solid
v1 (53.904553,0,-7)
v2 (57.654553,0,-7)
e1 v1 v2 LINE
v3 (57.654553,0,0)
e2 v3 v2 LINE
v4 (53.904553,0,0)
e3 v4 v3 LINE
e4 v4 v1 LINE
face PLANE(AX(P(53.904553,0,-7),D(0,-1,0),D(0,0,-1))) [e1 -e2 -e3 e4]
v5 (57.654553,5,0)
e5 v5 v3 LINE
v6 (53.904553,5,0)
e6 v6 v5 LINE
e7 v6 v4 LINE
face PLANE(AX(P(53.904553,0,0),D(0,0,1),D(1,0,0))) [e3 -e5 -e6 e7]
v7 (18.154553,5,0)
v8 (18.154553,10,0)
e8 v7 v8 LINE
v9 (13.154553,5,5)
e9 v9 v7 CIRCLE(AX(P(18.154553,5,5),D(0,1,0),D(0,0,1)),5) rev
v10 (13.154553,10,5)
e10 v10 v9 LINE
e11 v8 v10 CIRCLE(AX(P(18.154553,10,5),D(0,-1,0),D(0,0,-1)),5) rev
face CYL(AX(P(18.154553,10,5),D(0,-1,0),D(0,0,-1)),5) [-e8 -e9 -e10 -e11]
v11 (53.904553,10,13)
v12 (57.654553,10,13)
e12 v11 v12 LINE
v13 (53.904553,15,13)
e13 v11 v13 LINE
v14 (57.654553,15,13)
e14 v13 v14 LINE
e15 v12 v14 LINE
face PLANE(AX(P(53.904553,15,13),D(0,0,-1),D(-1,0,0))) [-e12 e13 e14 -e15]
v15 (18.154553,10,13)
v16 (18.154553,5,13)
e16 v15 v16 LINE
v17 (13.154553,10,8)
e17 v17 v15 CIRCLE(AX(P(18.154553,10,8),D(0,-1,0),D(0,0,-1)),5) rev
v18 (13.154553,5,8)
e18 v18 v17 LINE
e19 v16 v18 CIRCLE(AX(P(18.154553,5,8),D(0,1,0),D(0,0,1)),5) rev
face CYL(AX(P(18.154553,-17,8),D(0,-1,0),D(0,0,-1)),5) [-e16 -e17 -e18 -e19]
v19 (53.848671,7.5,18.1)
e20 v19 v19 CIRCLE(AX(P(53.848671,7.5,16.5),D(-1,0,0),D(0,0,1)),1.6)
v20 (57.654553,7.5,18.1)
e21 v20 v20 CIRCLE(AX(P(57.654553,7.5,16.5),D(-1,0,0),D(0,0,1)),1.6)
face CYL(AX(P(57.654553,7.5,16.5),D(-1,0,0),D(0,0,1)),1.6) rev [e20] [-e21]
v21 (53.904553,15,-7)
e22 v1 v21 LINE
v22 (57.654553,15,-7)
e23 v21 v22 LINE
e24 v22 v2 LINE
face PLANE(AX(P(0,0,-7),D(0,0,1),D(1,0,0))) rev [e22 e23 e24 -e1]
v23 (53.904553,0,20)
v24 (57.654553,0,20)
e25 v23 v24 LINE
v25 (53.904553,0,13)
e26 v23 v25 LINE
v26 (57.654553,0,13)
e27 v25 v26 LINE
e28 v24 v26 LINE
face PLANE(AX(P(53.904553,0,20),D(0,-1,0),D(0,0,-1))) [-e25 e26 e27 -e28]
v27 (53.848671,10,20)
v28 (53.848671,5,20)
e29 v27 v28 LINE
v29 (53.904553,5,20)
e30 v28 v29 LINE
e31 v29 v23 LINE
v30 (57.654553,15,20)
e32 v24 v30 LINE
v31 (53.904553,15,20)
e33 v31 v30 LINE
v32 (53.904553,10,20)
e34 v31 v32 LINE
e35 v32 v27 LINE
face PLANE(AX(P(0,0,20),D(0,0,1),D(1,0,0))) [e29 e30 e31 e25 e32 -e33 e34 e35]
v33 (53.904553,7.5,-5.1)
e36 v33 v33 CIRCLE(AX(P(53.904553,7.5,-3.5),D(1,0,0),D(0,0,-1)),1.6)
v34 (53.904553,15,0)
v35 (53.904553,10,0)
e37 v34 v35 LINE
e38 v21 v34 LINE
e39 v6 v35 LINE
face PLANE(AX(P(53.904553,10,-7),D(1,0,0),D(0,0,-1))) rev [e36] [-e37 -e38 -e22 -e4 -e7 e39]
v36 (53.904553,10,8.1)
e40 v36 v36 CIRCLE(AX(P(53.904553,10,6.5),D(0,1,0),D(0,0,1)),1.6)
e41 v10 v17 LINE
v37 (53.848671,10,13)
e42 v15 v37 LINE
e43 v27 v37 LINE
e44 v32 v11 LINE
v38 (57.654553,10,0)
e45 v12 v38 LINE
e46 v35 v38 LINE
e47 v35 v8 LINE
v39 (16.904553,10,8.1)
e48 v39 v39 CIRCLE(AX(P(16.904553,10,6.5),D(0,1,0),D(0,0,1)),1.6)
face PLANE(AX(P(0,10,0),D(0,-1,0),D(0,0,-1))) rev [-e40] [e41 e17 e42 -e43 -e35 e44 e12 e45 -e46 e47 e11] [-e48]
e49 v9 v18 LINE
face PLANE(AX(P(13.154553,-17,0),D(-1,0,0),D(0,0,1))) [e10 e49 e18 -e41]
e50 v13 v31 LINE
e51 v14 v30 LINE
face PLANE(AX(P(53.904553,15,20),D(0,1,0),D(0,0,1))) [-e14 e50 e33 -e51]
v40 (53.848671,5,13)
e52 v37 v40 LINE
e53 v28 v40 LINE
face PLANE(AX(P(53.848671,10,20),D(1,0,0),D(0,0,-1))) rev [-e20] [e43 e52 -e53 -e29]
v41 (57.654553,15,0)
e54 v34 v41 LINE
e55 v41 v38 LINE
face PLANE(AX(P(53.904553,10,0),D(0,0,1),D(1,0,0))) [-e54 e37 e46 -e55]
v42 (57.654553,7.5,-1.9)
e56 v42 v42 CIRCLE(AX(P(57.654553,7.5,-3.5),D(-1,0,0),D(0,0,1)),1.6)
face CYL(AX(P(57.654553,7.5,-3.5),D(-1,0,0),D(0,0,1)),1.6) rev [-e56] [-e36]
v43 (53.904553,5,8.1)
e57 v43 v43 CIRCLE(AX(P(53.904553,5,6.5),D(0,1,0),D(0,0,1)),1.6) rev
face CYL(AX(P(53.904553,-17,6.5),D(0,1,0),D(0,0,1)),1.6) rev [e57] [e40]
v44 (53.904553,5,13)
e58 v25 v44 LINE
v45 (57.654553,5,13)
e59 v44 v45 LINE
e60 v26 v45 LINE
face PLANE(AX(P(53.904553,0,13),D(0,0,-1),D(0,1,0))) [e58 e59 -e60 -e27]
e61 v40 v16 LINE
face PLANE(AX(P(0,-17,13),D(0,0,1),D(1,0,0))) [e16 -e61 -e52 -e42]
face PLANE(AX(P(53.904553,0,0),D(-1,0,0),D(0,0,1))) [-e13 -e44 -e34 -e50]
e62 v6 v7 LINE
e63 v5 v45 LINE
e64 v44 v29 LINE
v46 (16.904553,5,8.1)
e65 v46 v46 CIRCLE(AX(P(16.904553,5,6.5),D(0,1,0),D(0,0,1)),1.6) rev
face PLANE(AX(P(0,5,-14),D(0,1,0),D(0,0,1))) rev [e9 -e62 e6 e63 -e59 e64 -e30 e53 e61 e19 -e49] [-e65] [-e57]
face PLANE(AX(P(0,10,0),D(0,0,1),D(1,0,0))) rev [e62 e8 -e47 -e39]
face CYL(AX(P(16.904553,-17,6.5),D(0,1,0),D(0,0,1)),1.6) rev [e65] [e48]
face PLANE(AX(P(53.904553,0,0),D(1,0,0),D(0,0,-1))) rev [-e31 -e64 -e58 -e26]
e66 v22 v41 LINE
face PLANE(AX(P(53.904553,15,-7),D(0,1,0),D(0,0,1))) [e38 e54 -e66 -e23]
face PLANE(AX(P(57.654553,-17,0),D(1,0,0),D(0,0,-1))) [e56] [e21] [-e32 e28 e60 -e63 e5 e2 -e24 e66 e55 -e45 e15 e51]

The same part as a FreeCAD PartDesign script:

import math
import FreeCAD as App
import Part
import Sketcher

V = App.Vector


def edges_at(feature, points):
    """Names of the edges that pass closest to the given points."""
    edges = feature.Shape.Edges
    near = lambda p: min(range(len(edges)), key=lambda i: edges[i].distToShape(Part.Vertex(*p))[0])
    return sorted({f"Edge{near(p) + 1}" for p in points})


def add_polygon(sketch, points):
    """Adds a closed chain of lines whose ends are joined by coincident constraints."""
    first, n = sketch.GeometryCount, len(points)
    for a, b in zip(points, points[1:] + points[:1]):
        sketch.addGeometry(Part.LineSegment(App.Vector(*a, 0), App.Vector(*b, 0)), False)
    for i in range(n):
        sketch.addConstraint(Sketcher.Constraint("Coincident", first + i, 2, first + (i + 1) % n, 1))

doc = App.newDocument("Part")
body = doc.addObject("PartDesign::Body", "Body")

sketch1 = doc.addObject("Sketcher::SketchObject", "Sketch")
body.addObject(sketch1)
sketch1.AttachmentSupport = (doc.XZ_Plane, [""])
sketch1.MapMode = "FlatFace"
add_polygon(sketch1, [(0, 0), (0, 100), (100, 100), (100, 0)])
sketch1.addConstraint(Sketcher.Constraint("Vertical", 0))
sketch1.addConstraint(Sketcher.Constraint("Horizontal", 1))
sketch1.addConstraint(Sketcher.Constraint("Vertical", 2))
sketch1.addConstraint(Sketcher.Constraint("Horizontal", 3))
sketch1.addConstraint(Sketcher.Constraint("Coincident", 3, 2, -1, 1))
sketch1.addConstraint(Sketcher.Constraint("Equal", 3, 0))
sketch1.addConstraint(Sketcher.Constraint("DistanceX", 1, 1, 1, 2, 100.0))
pad1 = doc.addObject("PartDesign::Pad", "Pad")
body.addObject(pad1)
pad1.Profile = sketch1
pad1.Length = 10
pad1.Reversed = True

sketch2 = doc.addObject("Sketcher::SketchObject", "Sketch001")
body.addObject(sketch2)
sketch2.AttachmentSupport = (doc.XZ_Plane, [""])
sketch2.MapMode = "FlatFace"
sketch2.AttachmentOffset = App.Placement(V(0, 0, -10), App.Rotation())
add_polygon(sketch2, [(0, 13), (0, 100), (100, 100), (100, 13)])
sketch2.addConstraint(Sketcher.Constraint("Vertical", 0))
sketch2.addConstraint(Sketcher.Constraint("Horizontal", 1))
sketch2.addConstraint(Sketcher.Constraint("Vertical", 2))
sketch2.addConstraint(Sketcher.Constraint("Horizontal", 3))
sketch2.addConstraint(Sketcher.Constraint("PointOnObject", 0, 2, -2))
sketch2.addConstraint(Sketcher.Constraint("DistanceX", 1, 1, 1, 2, 100.0))
sketch2.addConstraint(Sketcher.Constraint("DistanceY", 0, 1, 0, 2, 87.0))
sketch2.addConstraint(Sketcher.Constraint("DistanceY", -1, 1, 0, 2, 100.0))
pocket1 = doc.addObject("PartDesign::Pocket", "Pocket")
body.addObject(pocket1)
pocket1.Profile = sketch2
pocket1.Length = 27
pocket1.Reversed = True

sketch3 = doc.addObject("Sketcher::SketchObject", "Sketch002")
body.addObject(sketch3)
sketch3.AttachmentSupport = (doc.XZ_Plane, [""])
sketch3.MapMode = "FlatFace"
sketch3.AttachmentOffset = App.Placement(V(0, 0, -10), App.Rotation())
add_polygon(sketch3, [(13, 13), (13, 0), (0, 0), (0, 13)])
add_polygon(sketch3, [(100, 0), (58, 0), (58, 13), (100, 13)])
sketch3.addConstraint(Sketcher.Constraint("Vertical", 0))
sketch3.addConstraint(Sketcher.Constraint("Horizontal", 1))
sketch3.addConstraint(Sketcher.Constraint("Vertical", 2))
sketch3.addConstraint(Sketcher.Constraint("Horizontal", 3))
sketch3.addConstraint(Sketcher.Constraint("Horizontal", 4))
sketch3.addConstraint(Sketcher.Constraint("Vertical", 5))
sketch3.addConstraint(Sketcher.Constraint("Horizontal", 6))
sketch3.addConstraint(Sketcher.Constraint("Vertical", 7))
sketch3.addConstraint(Sketcher.Constraint("Coincident", 1, 2, -1, 1))
sketch3.addConstraint(Sketcher.Constraint("PointOnObject", 4, 2, -1))
sketch3.addConstraint(Sketcher.Constraint("Horizontal", 3, 2, 5, 2))
sketch3.addConstraint(Sketcher.Constraint("DistanceY", 0, 2, 0, 1, 13.0))
sketch3.addConstraint(Sketcher.Constraint("DistanceX", -1, 1, 6, 2, 100.0))
sketch3.addConstraint(Sketcher.Constraint("DistanceX", 0, 2, 4, 2, 44.5))
sketch3.addConstraint(Sketcher.Constraint("DistanceX", 1, 2, 1, 1, 13.154553))
pocket2 = doc.addObject("PartDesign::Pocket", "Pocket001")
body.addObject(pocket2)
pocket2.Profile = sketch3
pocket2.Length = 27
pocket2.Reversed = True

sketch4 = doc.addObject("Sketcher::SketchObject", "Sketch003")
body.addObject(sketch4)
sketch4.AttachmentSupport = (doc.XZ_Plane, [""])
sketch4.MapMode = "FlatFace"
sketch4.AttachmentOffset = App.Placement(V(0, 0, -10), App.Rotation())
sketch4.addGeometry(Part.Circle(V(16.9, 6.5, 0), V(0, 0, 1), 1.6), False)
sketch4.addGeometry(Part.Circle(V(53.9, 6.5, 0), V(0, 0, 1), 1.6), False)
sketch4.addConstraint(Sketcher.Constraint("Equal", 0, 1))
sketch4.addConstraint(Sketcher.Constraint("Horizontal", 0, 3, 1, 3))
sketch4.addConstraint(Sketcher.Constraint("Diameter", 0, 3.2))
sketch4.addConstraint(Sketcher.Constraint("DistanceX", 0, 3, 1, 3, 37.0))
sketch4.addConstraint(Sketcher.Constraint("DistanceY", -1, 1, 0, 3, 6.5))
sketch4.addConstraint(Sketcher.Constraint("DistanceX", -1, 1, 0, 3, 16.904553))
pocket3 = doc.addObject("PartDesign::Pocket", "Pocket002")
body.addObject(pocket3)
pocket3.Profile = sketch4
pocket3.Length = 27
pocket3.Reversed = True

sketch5 = doc.addObject("Sketcher::SketchObject", "Sketch004")
body.addObject(sketch5)
sketch5.AttachmentSupport = (doc.XY_Plane, [""])
sketch5.MapMode = "FlatFace"
sketch5.AttachmentOffset = App.Placement(V(0, 0, 13), App.Rotation())
add_polygon(sketch5, [(13, 5), (13, 0), (58, 0), (58, 5)])
sketch5.addConstraint(Sketcher.Constraint("Vertical", 0))
sketch5.addConstraint(Sketcher.Constraint("Horizontal", 1))
sketch5.addConstraint(Sketcher.Constraint("Vertical", 2))
sketch5.addConstraint(Sketcher.Constraint("Horizontal", 3))
sketch5.addConstraint(Sketcher.Constraint("PointOnObject", 0, 2, -1))
sketch5.addConstraint(Sketcher.Constraint("DistanceY", 0, 2, 0, 1, 5.0))
sketch5.addConstraint(Sketcher.Constraint("DistanceX", 1, 1, 1, 2, 44.5))
sketch5.addConstraint(Sketcher.Constraint("DistanceX", -1, 1, 0, 2, 13.154553))
pocket4 = doc.addObject("PartDesign::Pocket", "Pocket003")
body.addObject(pocket4)
pocket4.Profile = sketch5
pocket4.Length = 27

sketch6 = doc.addObject("Sketcher::SketchObject", "Sketch005")
body.addObject(sketch6)
sketch6.AttachmentSupport = (doc.XY_Plane, [""])
sketch6.MapMode = "FlatFace"
sketch6.AttachmentOffset = App.Placement(V(0, 0, 13), App.Rotation())
add_polygon(sketch6, [(53.8, 10), (53.8, 5), (57.7, 5), (57.7, 10)])
sketch6.addConstraint(Sketcher.Constraint("Vertical", 0))
sketch6.addConstraint(Sketcher.Constraint("Horizontal", 1))
sketch6.addConstraint(Sketcher.Constraint("Vertical", 2))
sketch6.addConstraint(Sketcher.Constraint("Horizontal", 3))
sketch6.addConstraint(Sketcher.Constraint("DistanceY", 0, 2, 0, 1, 5.0))
sketch6.addConstraint(Sketcher.Constraint("DistanceY", -1, 1, 0, 2, 5.0))
sketch6.addConstraint(Sketcher.Constraint("DistanceX", 1, 1, 1, 2, 3.805882))
sketch6.addConstraint(Sketcher.Constraint("DistanceX", -1, 1, 0, 2, 53.848671))
pad2 = doc.addObject("PartDesign::Pad", "Pad001")
body.addObject(pad2)
pad2.Profile = sketch6
pad2.Length = 7

sketch7 = doc.addObject("Sketcher::SketchObject", "Sketch006")
body.addObject(sketch7)
sketch7.AttachmentSupport = (doc.XY_Plane, [""])
sketch7.MapMode = "FlatFace"
add_polygon(sketch7, [(57.7, 10), (57.7, 5), (53.9, 5), (53.9, 10)])
sketch7.addConstraint(Sketcher.Constraint("Vertical", 0))
sketch7.addConstraint(Sketcher.Constraint("Horizontal", 1))
sketch7.addConstraint(Sketcher.Constraint("Vertical", 2))
sketch7.addConstraint(Sketcher.Constraint("Horizontal", 3))
sketch7.addConstraint(Sketcher.Constraint("DistanceY", 0, 2, 0, 1, 5.0))
sketch7.addConstraint(Sketcher.Constraint("DistanceY", -1, 1, 0, 2, 5.0))
sketch7.addConstraint(Sketcher.Constraint("DistanceX", 1, 2, 1, 1, 3.75))
sketch7.addConstraint(Sketcher.Constraint("DistanceX", -1, 1, 0, 2, 57.654553))
pad3 = doc.addObject("PartDesign::Pad", "Pad002")
body.addObject(pad3)
pad3.Profile = sketch7
pad3.Length = 7
pad3.Reversed = True
doc.recompute()

fillet = doc.addObject("PartDesign::Fillet", "Fillet")
body.addObject(fillet)
fillet.Base = (pad3, edges_at(pad3, [(13.155, 7.5, 0)]))
fillet.Radius = 5
doc.recompute()

fillet2 = doc.addObject("PartDesign::Fillet", "Fillet001")
body.addObject(fillet2)
fillet2.Base = (fillet, edges_at(fillet, [(13.155, 7.5, 13)]))
fillet2.Radius = 5

sketch8 = doc.addObject("Sketcher::SketchObject", "Sketch007")
body.addObject(sketch8)
sketch8.AttachmentSupport = (doc.YZ_Plane, [""])
sketch8.MapMode = "FlatFace"
sketch8.AttachmentOffset = App.Placement(V(0, 0, 57.654553), App.Rotation())
add_polygon(sketch8, [(15, 20), (10, 20), (10, 13), (15, 13)])
add_polygon(sketch8, [(5, 20), (0, 20), (0, 13), (5, 13)])
add_polygon(sketch8, [(15, 0), (10, 0), (10, -7), (15, -7)])
add_polygon(sketch8, [(5, 0), (0, 0), (0, -7), (5, -7)])
sketch8.addConstraint(Sketcher.Constraint("Horizontal", 0))
sketch8.addConstraint(Sketcher.Constraint("Vertical", 1))
sketch8.addConstraint(Sketcher.Constraint("Horizontal", 2))
sketch8.addConstraint(Sketcher.Constraint("Vertical", 3))
sketch8.addConstraint(Sketcher.Constraint("Horizontal", 4))
sketch8.addConstraint(Sketcher.Constraint("Vertical", 5))
sketch8.addConstraint(Sketcher.Constraint("Horizontal", 6))
sketch8.addConstraint(Sketcher.Constraint("Vertical", 7))
sketch8.addConstraint(Sketcher.Constraint("Horizontal", 8))
sketch8.addConstraint(Sketcher.Constraint("Vertical", 9))
sketch8.addConstraint(Sketcher.Constraint("Horizontal", 10))
sketch8.addConstraint(Sketcher.Constraint("Vertical", 11))
sketch8.addConstraint(Sketcher.Constraint("Horizontal", 12))
sketch8.addConstraint(Sketcher.Constraint("Vertical", 13))
sketch8.addConstraint(Sketcher.Constraint("Horizontal", 14))
sketch8.addConstraint(Sketcher.Constraint("Vertical", 15))
sketch8.addConstraint(Sketcher.Constraint("Coincident", 12, 2, -1, 1))
sketch8.addConstraint(Sketcher.Constraint("PointOnObject", 4, 2, -2))
sketch8.addConstraint(Sketcher.Constraint("PointOnObject", 8, 2, -1))
sketch8.addConstraint(Sketcher.Constraint("Horizontal", 3, 2, 4, 2))
sketch8.addConstraint(Sketcher.Constraint("Horizontal", 2, 2, 5, 2))
sketch8.addConstraint(Sketcher.Constraint("Horizontal", 10, 2, 13, 2))
sketch8.addConstraint(Sketcher.Constraint("Vertical", 1, 2, 8, 2))
sketch8.addConstraint(Sketcher.Constraint("Vertical", 3, 2, 10, 2))
sketch8.addConstraint(Sketcher.Constraint("Vertical", 7, 2, 14, 2))
sketch8.addConstraint(Sketcher.Constraint("Equal", 2, 4))
sketch8.addConstraint(Sketcher.Constraint("Equal", 7, 9))
sketch8.addConstraint(Sketcher.Constraint("DistanceX", 0, 2, 0, 1, 5.0))
sketch8.addConstraint(Sketcher.Constraint("DistanceY", 1, 2, 1, 1, 7.0))
sketch8.addConstraint(Sketcher.Constraint("DistanceX", -1, 1, 0, 2, 10.0))
sketch8.addConstraint(Sketcher.Constraint("DistanceY", -1, 1, 0, 2, 20.0))
pad4 = doc.addObject("PartDesign::Pad", "Pad003")
body.addObject(pad4)
pad4.Profile = sketch8
pad4.Length = 3.750003
pad4.Reversed = True

sketch9 = doc.addObject("Sketcher::SketchObject", "Sketch008")
body.addObject(sketch9)
sketch9.AttachmentSupport = (doc.YZ_Plane, [""])
sketch9.MapMode = "FlatFace"
sketch9.AttachmentOffset = App.Placement(V(0, 0, 57.654553), App.Rotation())
sketch9.addGeometry(Part.ArcOfCircle(Part.Circle(V(7.5, -3.5, 0), V(0, 0, 1), 1.6), math.radians(54), math.radians(90)), False)
sketch9.addGeometry(Part.ArcOfCircle(Part.Circle(V(7.5, -3.5, 0), V(0, 0, 1), 1.6), math.radians(-126), math.radians(54)), False)
sketch9.addGeometry(Part.ArcOfCircle(Part.Circle(V(7.5, -3.5, 0), V(0, 0, 1), 1.6), math.radians(90), math.radians(234)), False)
sketch9.addGeometry(Part.ArcOfCircle(Part.Circle(V(7.5, 16.5, 0), V(0, 0, 1), 1.6), math.radians(-54), math.radians(90)), False)
sketch9.addGeometry(Part.ArcOfCircle(Part.Circle(V(7.5, 16.5, 0), V(0, 0, 1), 1.6), math.radians(126), math.radians(306)), False)
sketch9.addGeometry(Part.ArcOfCircle(Part.Circle(V(7.5, 16.5, 0), V(0, 0, 1), 1.6), math.radians(90), math.radians(126)), False)
sketch9.addConstraint(Sketcher.Constraint("Tangent", 0, 1, 1, 2))
sketch9.addConstraint(Sketcher.Constraint("Tangent", 1, 1, 2, 2))
sketch9.addConstraint(Sketcher.Constraint("Tangent", 2, 1, 0, 2))
sketch9.addConstraint(Sketcher.Constraint("Tangent", 3, 1, 4, 2))
sketch9.addConstraint(Sketcher.Constraint("Tangent", 4, 1, 5, 2))
sketch9.addConstraint(Sketcher.Constraint("Tangent", 5, 1, 3, 2))
sketch9.addConstraint(Sketcher.Constraint("Equal", 2, 3))
sketch9.addConstraint(Sketcher.Constraint("Vertical", 2, 3, 3, 3))
sketch9.addConstraint(Sketcher.Constraint("Vertical", 5, 3, 2, 1))
sketch9.addConstraint(Sketcher.Constraint("Vertical", 0, 1, 3, 1))
sketch9.addConstraint(Sketcher.Constraint("Vertical", 1, 1, 4, 1))
sketch9.addConstraint(Sketcher.Constraint("Vertical", 2, 1, 5, 1))
sketch9.addConstraint(Sketcher.Constraint("Radius", 0, 1.6))
sketch9.addConstraint(Sketcher.Constraint("DistanceY", 0, 3, 3, 3, 20.0))
sketch9.addConstraint(Sketcher.Constraint("DistanceX", -1, 1, 0, 3, 7.5))
sketch9.addConstraint(Sketcher.Constraint("DistanceY", 0, 3, -1, 1, 3.5))
sketch9.addConstraint(Sketcher.Constraint("DistanceX", -1, 1, 0, 1, 8.429981))
sketch9.addConstraint(Sketcher.Constraint("DistanceX", -1, 1, 1, 1, 6.570019))
pocket5 = doc.addObject("PartDesign::Pocket", "Pocket004")
body.addObject(pocket5)
pocket5.Profile = sketch9
pocket5.Length = 3.805882

doc.recompute()
